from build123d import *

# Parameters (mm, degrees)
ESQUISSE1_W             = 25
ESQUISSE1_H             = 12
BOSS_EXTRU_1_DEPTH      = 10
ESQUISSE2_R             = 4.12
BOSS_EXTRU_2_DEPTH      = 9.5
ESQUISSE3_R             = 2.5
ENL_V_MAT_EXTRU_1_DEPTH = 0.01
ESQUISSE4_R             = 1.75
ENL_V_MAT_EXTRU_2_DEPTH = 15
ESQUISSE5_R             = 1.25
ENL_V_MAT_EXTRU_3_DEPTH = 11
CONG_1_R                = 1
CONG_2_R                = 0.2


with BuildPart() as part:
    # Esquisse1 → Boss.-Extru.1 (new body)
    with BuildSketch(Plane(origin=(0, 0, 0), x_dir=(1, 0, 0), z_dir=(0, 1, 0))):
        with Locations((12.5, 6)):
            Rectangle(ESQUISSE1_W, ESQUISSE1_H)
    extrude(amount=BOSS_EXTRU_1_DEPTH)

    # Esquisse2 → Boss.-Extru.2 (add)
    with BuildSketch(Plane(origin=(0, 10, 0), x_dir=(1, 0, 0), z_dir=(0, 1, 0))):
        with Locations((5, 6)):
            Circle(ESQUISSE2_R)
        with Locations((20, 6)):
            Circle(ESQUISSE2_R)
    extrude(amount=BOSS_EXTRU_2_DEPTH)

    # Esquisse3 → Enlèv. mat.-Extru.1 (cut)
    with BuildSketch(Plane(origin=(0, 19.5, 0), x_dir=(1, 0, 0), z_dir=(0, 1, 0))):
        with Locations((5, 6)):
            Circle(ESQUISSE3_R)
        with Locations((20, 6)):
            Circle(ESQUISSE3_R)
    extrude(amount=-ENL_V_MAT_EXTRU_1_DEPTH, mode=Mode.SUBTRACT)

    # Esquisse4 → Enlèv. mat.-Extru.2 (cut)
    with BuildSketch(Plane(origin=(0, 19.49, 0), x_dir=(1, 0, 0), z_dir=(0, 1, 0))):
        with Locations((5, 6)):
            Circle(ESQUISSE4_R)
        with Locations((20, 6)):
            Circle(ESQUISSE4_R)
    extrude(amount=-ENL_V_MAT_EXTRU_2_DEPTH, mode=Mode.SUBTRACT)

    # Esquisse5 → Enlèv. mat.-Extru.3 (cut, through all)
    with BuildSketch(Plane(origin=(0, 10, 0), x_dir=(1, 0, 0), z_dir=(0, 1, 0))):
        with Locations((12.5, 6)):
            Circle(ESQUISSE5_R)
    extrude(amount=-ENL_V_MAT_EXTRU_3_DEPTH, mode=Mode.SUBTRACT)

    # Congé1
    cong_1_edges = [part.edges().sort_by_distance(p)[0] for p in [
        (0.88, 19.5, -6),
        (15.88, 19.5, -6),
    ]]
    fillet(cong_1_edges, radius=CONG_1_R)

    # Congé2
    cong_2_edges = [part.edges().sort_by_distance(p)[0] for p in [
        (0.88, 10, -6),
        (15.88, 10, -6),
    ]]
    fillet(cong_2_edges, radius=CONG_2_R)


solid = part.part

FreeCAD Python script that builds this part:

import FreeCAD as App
import Part
import Sketcher


def edges_at(feature, points):
    """Names of the edges that pass closest to the given points."""
    edges = feature.Shape.Edges
    near = lambda p: min(range(len(edges)), key=lambda i: edges[i].distToShape(Part.Vertex(*p))[0])
    return sorted({f"Edge{near(p) + 1}" for p in points})


def add_polygon(sketch, points):
    """Adds a closed chain of lines whose ends are joined by coincident constraints."""
    first, n = sketch.GeometryCount, len(points)
    for a, b in zip(points, points[1:] + points[:1]):
        sketch.addGeometry(Part.LineSegment(App.Vector(*a, 0), App.Vector(*b, 0)), False)
    for i in range(n):
        sketch.addConstraint(Sketcher.Constraint("Coincident", first + i, 2, first + (i + 1) % n, 1))

doc = App.newDocument("Part")
body = doc.addObject("PartDesign::Body", "Body")

# Sketch on XZ plane
sketch1 = body.newObject("Sketcher::SketchObject", "Sketch")
sketch1.AttachmentSupport = (doc.getObject("XZ_Plane"), [""])
sketch1.MapMode = "FlatFace"
add_polygon(sketch1, [(0, -12), (0, 0), (25, 0), (25, -12)])  # lines 0-3
sketch1.addConstraint([
    Sketcher.Constraint("Vertical", 0),
    Sketcher.Constraint("Horizontal", 1),
    Sketcher.Constraint("Vertical", 2),
    Sketcher.Constraint("Horizontal", 3),
    Sketcher.Constraint("Coincident", 0, 2, -1, 1),
    Sketcher.Constraint("DistanceX", 1, 1, 1, 2, 25.0),
    Sketcher.Constraint("DistanceY", 0, 1, 0, 2, 12.0),
])
pad1 = body.newObject("PartDesign::Pad", "Pad")
pad1.Profile = sketch1
pad1.Length = 10
pad1.Reversed = True

# Sketch on XZ plane
sketch2 = body.newObject("Sketcher::SketchObject", "Sketch001")
sketch2.AttachmentSupport = (doc.getObject("XZ_Plane"), [""])
sketch2.MapMode = "FlatFace"
sketch2.AttachmentOffset = App.Placement(App.Vector(0, 0, -10), App.Rotation())
sketch2.addGeometry([
    Part.Circle(App.Vector(5, -6, 0), App.Vector(0, 0, 1), 4.12),
    Part.Circle(App.Vector(20, -6, 0), App.Vector(0, 0, 1), 4.12),
], False)
sketch2.addConstraint([
    Sketcher.Constraint("Equal", 0, 1),
    Sketcher.Constraint("Horizontal", 0, 3, 1, 3),
    Sketcher.Constraint("Diameter", 0, 8.24),
    Sketcher.Constraint("DistanceX", -1, 1, 0, 3, 5.0),
    Sketcher.Constraint("DistanceY", 0, 3, -1, 1, 6.0),
    Sketcher.Constraint("DistanceX", -1, 1, 1, 3, 20.0),
])
pad2 = body.newObject("PartDesign::Pad", "Pad001")
pad2.Profile = sketch2
pad2.Length = 9.5
pad2.Reversed = True

# Sketch on XZ plane
sketch3 = body.newObject("Sketcher::SketchObject", "Sketch002")
sketch3.AttachmentSupport = (doc.getObject("XZ_Plane"), [""])
sketch3.MapMode = "FlatFace"
sketch3.AttachmentOffset = App.Placement(App.Vector(0, 0, -19.5), App.Rotation())
sketch3.addGeometry([
    Part.Circle(App.Vector(5, -6, 0), App.Vector(0, 0, 1), 2.5),
    Part.Circle(App.Vector(20, -6, 0), App.Vector(0, 0, 1), 2.5),
], False)
sketch3.addConstraint([
    Sketcher.Constraint("Equal", 0, 1),
    Sketcher.Constraint("Horizontal", 0, 3, 1, 3),
    Sketcher.Constraint("Diameter", 0, 5.0),
    Sketcher.Constraint("DistanceX", -1, 1, 0, 3, 5.0),
    Sketcher.Constraint("DistanceY", 0, 3, -1, 1, 6.0),
    Sketcher.Constraint("DistanceX", -1, 1, 1, 3, 20.0),
])
pocket1 = body.newObject("PartDesign::Pocket", "Pocket")
pocket1.Profile = sketch3
pocket1.Length = 0.01
pocket1.Reversed = True

# Sketch on XZ plane
sketch4 = body.newObject("Sketcher::SketchObject", "Sketch003")
sketch4.AttachmentSupport = (doc.getObject("XZ_Plane"), [""])
sketch4.MapMode = "FlatFace"
sketch4.AttachmentOffset = App.Placement(App.Vector(0, 0, -19.49), App.Rotation())
sketch4.addGeometry([
    Part.Circle(App.Vector(5, -6, 0), App.Vector(0, 0, 1), 1.75),
    Part.Circle(App.Vector(20, -6, 0), App.Vector(0, 0, 1), 1.75),
], False)
sketch4.addConstraint([
    Sketcher.Constraint("Equal", 0, 1),
    Sketcher.Constraint("Horizontal", 0, 3, 1, 3),
    Sketcher.Constraint("Diameter", 0, 3.5),
    Sketcher.Constraint("DistanceX", -1, 1, 0, 3, 5.0),
    Sketcher.Constraint("DistanceY", 0, 3, -1, 1, 6.0),
    Sketcher.Constraint("DistanceX", -1, 1, 1, 3, 20.0),
])
pocket2 = body.newObject("PartDesign::Pocket", "Pocket001")
pocket2.Profile = sketch4
pocket2.Length = 15
pocket2.Reversed = True

# Sketch on XZ plane
sketch5 = body.newObject("Sketcher::SketchObject", "Sketch004")
sketch5.AttachmentSupport = (doc.getObject("XZ_Plane"), [""])
sketch5.MapMode = "FlatFace"
sketch5.AttachmentOffset = App.Placement(App.Vector(0, 0, -10), App.Rotation())
sketch5.addGeometry(Part.Circle(App.Vector(12.5, -6, 0), App.Vector(0, 0, 1), 1.25), False)
sketch5.addConstraint([
    Sketcher.Constraint("Diameter", 0, 2.5),
    Sketcher.Constraint("DistanceY", 0, 3, -1, 1, 6.0),
    Sketcher.Constraint("DistanceX", -1, 1, 0, 3, 12.5),
])
pocket3 = body.newObject("PartDesign::Pocket", "Pocket002")
pocket3.Profile = sketch5
pocket3.Type = "ThroughAll"
pocket3.Reversed = True
doc.recompute()

fillet = body.newObject("PartDesign::Fillet", "Fillet")
fillet.Base = (pocket3, edges_at(pocket3, [(0.88, 19.5, -6), (15.88, 19.5, -6)]))
fillet.Radius = 1
doc.recompute()

fillet2 = body.newObject("PartDesign::Fillet", "Fillet001")
fillet2.Base = (fillet, edges_at(fillet, [(0.88, 10, -6), (15.88, 10, -6)]))
fillet2.Radius = 0.2

doc.recompute()
